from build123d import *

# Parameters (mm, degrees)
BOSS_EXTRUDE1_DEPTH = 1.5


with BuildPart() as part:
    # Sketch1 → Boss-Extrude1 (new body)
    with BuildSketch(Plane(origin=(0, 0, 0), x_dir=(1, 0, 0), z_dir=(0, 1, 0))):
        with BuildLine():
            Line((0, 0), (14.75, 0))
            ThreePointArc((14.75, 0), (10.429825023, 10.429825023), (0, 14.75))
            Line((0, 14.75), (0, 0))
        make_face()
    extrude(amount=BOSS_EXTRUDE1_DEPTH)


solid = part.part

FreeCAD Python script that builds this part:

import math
import FreeCAD as App
import Part
import Sketcher
from FreeCAD import Vector

doc = App.newDocument("Part")
body = doc.addObject("PartDesign::Body", "Body")

# Sketch on XZ plane
sketch1 = body.newObject("Sketcher::SketchObject", "Sketch")
sketch1.AttachmentSupport = (doc.getObject("XZ_Plane"), [""])
sketch1.MapMode = "FlatFace"
sketch1.addGeometry(Part.LineSegment(Vector(0, 0, 0), Vector(15, 0, 0)), False)
sketch1.addGeometry(Part.ArcOfCircle(Part.Circle(Vector(0, 0, 0), Vector(0, 0, 1), 15), math.radians(-90), math.radians(0)), False)
sketch1.addGeometry(Part.LineSegment(Vector(0, -15, 0), Vector(0, 0, 0)), False)
sketch1.addConstraint(Sketcher.Constraint("Coincident", 0, 2, 1, 2))
sketch1.addConstraint(Sketcher.Constraint("Coincident", 1, 1, 2, 1))
sketch1.addConstraint(Sketcher.Constraint("Coincident", 2, 2, 0, 1))
sketch1.addConstraint(Sketcher.Constraint("Horizontal", 0))
sketch1.addConstraint(Sketcher.Constraint("Vertical", 2))
sketch1.addConstraint(Sketcher.Constraint("Coincident", 1, 3, -1, 1))
sketch1.addConstraint(Sketcher.Constraint("Coincident", 2, 2, -1, 1))
sketch1.addConstraint(Sketcher.Constraint("Radius", 1, 14.75))
pad1 = body.newObject("PartDesign::Pad", "Pad")
pad1.Profile = sketch1
pad1.Length = 1.5
pad1.Reversed = True

doc.recompute()
